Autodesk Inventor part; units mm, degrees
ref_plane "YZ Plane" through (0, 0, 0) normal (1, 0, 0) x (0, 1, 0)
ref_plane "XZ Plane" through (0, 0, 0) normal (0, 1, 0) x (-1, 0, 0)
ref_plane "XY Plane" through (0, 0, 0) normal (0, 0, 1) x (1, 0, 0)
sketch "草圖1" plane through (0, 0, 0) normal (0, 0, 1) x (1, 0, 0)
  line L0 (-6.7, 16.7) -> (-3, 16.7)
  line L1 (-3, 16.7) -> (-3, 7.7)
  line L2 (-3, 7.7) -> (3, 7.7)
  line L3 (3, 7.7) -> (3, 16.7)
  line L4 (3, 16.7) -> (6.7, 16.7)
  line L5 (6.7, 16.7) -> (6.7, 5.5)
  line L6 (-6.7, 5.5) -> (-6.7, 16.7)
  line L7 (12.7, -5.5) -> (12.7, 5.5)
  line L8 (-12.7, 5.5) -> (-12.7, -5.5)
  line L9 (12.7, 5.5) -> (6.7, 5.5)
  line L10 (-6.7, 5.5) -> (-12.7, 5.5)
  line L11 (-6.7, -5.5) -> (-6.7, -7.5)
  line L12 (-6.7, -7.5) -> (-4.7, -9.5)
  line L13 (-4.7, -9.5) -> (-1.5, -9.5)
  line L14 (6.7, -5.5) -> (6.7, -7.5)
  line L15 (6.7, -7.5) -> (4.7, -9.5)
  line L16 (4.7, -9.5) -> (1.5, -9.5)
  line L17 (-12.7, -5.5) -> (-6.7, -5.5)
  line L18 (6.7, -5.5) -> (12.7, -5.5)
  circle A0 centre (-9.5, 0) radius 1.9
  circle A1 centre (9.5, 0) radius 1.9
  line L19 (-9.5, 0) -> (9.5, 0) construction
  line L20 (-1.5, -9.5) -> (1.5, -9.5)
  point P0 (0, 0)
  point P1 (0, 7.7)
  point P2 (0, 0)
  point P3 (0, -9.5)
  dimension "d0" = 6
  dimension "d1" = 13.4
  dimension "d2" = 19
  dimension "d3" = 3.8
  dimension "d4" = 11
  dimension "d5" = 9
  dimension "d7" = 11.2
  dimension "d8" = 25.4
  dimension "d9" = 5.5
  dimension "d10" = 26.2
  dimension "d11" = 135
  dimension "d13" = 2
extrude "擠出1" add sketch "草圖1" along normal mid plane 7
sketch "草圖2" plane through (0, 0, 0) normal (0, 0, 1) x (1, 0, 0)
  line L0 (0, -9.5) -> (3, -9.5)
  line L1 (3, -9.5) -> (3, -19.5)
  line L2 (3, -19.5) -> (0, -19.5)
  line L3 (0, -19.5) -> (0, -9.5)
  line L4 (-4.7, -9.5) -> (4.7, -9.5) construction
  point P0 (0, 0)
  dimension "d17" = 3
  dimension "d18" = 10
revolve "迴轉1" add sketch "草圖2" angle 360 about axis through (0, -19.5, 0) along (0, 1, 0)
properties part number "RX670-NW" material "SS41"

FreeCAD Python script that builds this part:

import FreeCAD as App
import Part
import Sketcher

V = App.Vector
Q = App.Units.Quantity

doc = App.newDocument("Part")
body = doc.addObject("PartDesign::Body", "Body")

# Sketch on XY plane
sketch1 = doc.addObject("Sketcher::SketchObject", "Sketch")
body.addObject(sketch1)
sketch1.AttachmentSupport = (doc.XY_Plane, [""])
sketch1.MapMode = "FlatFace"
sketch1.addGeometry([
    Part.LineSegment(V(-3, 16.7, 0), V(-6.7, 16.7, 0)),  # 0
    Part.LineSegment(V(-6.7, 16.7, 0), V(-6.7, 5.5, 0)),  # 1
    Part.LineSegment(V(-6.7, 5.5, 0), V(-12.7, 5.5, 0)),  # 2
    Part.LineSegment(V(-12.7, 5.5, 0), V(-12.7, -5.5, 0)),  # 3
    Part.LineSegment(V(-12.7, -5.5, 0), V(-6.7, -5.5, 0)),  # 4
    Part.LineSegment(V(-6.7, -5.5, 0), V(-6.7, -7.5, 0)),  # 5
    Part.LineSegment(V(-6.7, -7.5, 0), V(-4.7, -9.5, 0)),  # 6
    Part.LineSegment(V(-4.7, -9.5, 0), V(4.7, -9.5, 0)),  # 7
    Part.LineSegment(V(4.7, -9.5, 0), V(6.7, -7.5, 0)),  # 8
    Part.LineSegment(V(6.7, -7.5, 0), V(6.7, -5.5, 0)),  # 9
    Part.LineSegment(V(6.7, -5.5, 0), V(12.7, -5.5, 0)),  # 10
    Part.LineSegment(V(12.7, -5.5, 0), V(12.7, 5.5, 0)),  # 11
    Part.LineSegment(V(12.7, 5.5, 0), V(6.7, 5.5, 0)),  # 12
    Part.LineSegment(V(6.7, 5.5, 0), V(6.7, 16.7, 0)),  # 13
    Part.LineSegment(V(6.7, 16.7, 0), V(3, 16.7, 0)),  # 14
    Part.LineSegment(V(3, 16.7, 0), V(3, 7.7, 0)),  # 15
    Part.LineSegment(V(3, 7.7, 0), V(-3, 7.7, 0)),  # 16
    Part.LineSegment(V(-3, 7.7, 0), V(-3, 16.7, 0)),  # 17
    Part.Circle(V(-9.5, 0, 0), V(0, 0, 1), 1.9),  # 18
    Part.Circle(V(9.5, 0, 0), V(0, 0, 1), 1.9),  # 19
], False)
sketch1.addConstraint([
    Sketcher.Constraint("Coincident", 0, 2, 1, 1),
    Sketcher.Constraint("Coincident", 1, 2, 2, 1),
    Sketcher.Constraint("Coincident", 2, 2, 3, 1),
    Sketcher.Constraint("Coincident", 3, 2, 4, 1),
    Sketcher.Constraint("Coincident", 4, 2, 5, 1),
    Sketcher.Constraint("Coincident", 5, 2, 6, 1),
    Sketcher.Constraint("Coincident", 6, 2, 7, 1),
    Sketcher.Constraint("Coincident", 7, 2, 8, 1),
    Sketcher.Constraint("Coincident", 8, 2, 9, 1),
    Sketcher.Constraint("Coincident", 9, 2, 10, 1),
    Sketcher.Constraint("Coincident", 10, 2, 11, 1),
    Sketcher.Constraint("Coincident", 11, 2, 12, 1),
    Sketcher.Constraint("Coincident", 12, 2, 13, 1),
    Sketcher.Constraint("Coincident", 13, 2, 14, 1),
    Sketcher.Constraint("Coincident", 14, 2, 15, 1),
    Sketcher.Constraint("Coincident", 15, 2, 16, 1),
    Sketcher.Constraint("Coincident", 16, 2, 17, 1),
    Sketcher.Constraint("Coincident", 17, 2, 0, 1),
    Sketcher.Constraint("Horizontal", 0),
    Sketcher.Constraint("Vertical", 1),
    Sketcher.Constraint("Horizontal", 2),
    Sketcher.Constraint("Vertical", 3),
    Sketcher.Constraint("Horizontal", 4),
    Sketcher.Constraint("Vertical", 5),
    Sketcher.Constraint("Horizontal", 7),
    Sketcher.Constraint("Vertical", 9),
    Sketcher.Constraint("Horizontal", 10),
    Sketcher.Constraint("Vertical", 11),
    Sketcher.Constraint("Horizontal", 12),
    Sketcher.Constraint("Vertical", 13),
    Sketcher.Constraint("Horizontal", 14),
    Sketcher.Constraint("Vertical", 15),
    Sketcher.Constraint("Horizontal", 16),
    Sketcher.Constraint("Vertical", 17),
    Sketcher.Constraint("Equal", 18, 19),
    Sketcher.Constraint("Symmetric", 18, 3, 19, 3, -1, 1),
    Sketcher.Constraint("Symmetric", 1, 2, 9, 2, -1, 1),
    Sketcher.Constraint("Symmetric", 3, 2, 11, 2, -1, 1),
    Sketcher.Constraint("Symmetric", 5, 2, 8, 2, -2),
    Sketcher.Constraint("Symmetric", 1, 2, 12, 2, -2),
    Sketcher.Constraint("Symmetric", 14, 2, 17, 2, -2),
    Sketcher.Constraint("PointOnObject", 18, 3, -1),
    Sketcher.Constraint("Perpendicular", 6, 8),
    Sketcher.Constraint("Equal", 12, 16),
    Sketcher.Constraint("Equal", 6, 8),
    Sketcher.Constraint("Diameter", 18, Q("3.8 mm")),
    Sketcher.Constraint("DistanceX", 2, 2, 2, 1, Q("6 mm")),
    Sketcher.Constraint("DistanceY", 3, 2, 3, 1, Q("11 mm")),
    Sketcher.Constraint("DistanceY", 5, 2, 5, 1, Q("2 mm")),
    Sketcher.Constraint("DistanceY", 15, 2, 15, 1, Q("9 mm")),
    Sketcher.Constraint("DistanceY", 1, 2, 1, 1, Q("11.2 mm")),
    Sketcher.Constraint("DistanceX", 18, 3, 19, 3, Q("19 mm")),
    Sketcher.Constraint("DistanceX", 5, 2, 6, 2, Q("2 mm")),
    Sketcher.Constraint("DistanceX", 5, 2, 8, 2, Q("13.4 mm")),
])
pad1 = doc.addObject("PartDesign::Pad", "Pad")
body.addObject(pad1)
pad1.Profile = sketch1
pad1.Length = 7
pad1.Midplane = True

# Sketch on XY plane
sketch2 = doc.addObject("Sketcher::SketchObject", "Sketch001")
body.addObject(sketch2)
sketch2.AttachmentSupport = (doc.XY_Plane, [""])
sketch2.MapMode = "FlatFace"
sketch2.addGeometry([
    Part.LineSegment(V(3, -9.5, 0), V(0, -9.5, 0)),
    Part.LineSegment(V(0, -9.5, 0), V(0, -19.5, 0)),
    Part.LineSegment(V(0, -19.5, 0), V(3, -19.5, 0)),
    Part.LineSegment(V(3, -19.5, 0), V(3, -9.5, 0)),
], False)
sketch2.addConstraint([
    Sketcher.Constraint("Coincident", 0, 2, 1, 1),
    Sketcher.Constraint("Coincident", 1, 2, 2, 1),
    Sketcher.Constraint("Coincident", 2, 2, 3, 1),
    Sketcher.Constraint("Coincident", 3, 2, 0, 1),
    Sketcher.Constraint("Horizontal", 0),
    Sketcher.Constraint("Vertical", 1),
    Sketcher.Constraint("Horizontal", 2),
    Sketcher.Constraint("Vertical", 3),
    Sketcher.Constraint("PointOnObject", 0, 2, -2),
    Sketcher.Constraint("DistanceX", 0, 2, 0, 1, Q("3 mm")),
    Sketcher.Constraint("DistanceY", 1, 2, 1, 1, Q("10 mm")),
    Sketcher.Constraint("DistanceY", 0, 2, -1, 1, Q("9.5 mm")),
])
revolution = doc.addObject("PartDesign::Revolution", "Revolution")
body.addObject(revolution)
revolution.Profile = sketch2
revolution.ReferenceAxis = (sketch2, ["V_Axis"])
revolution.Angle = 360

doc.recompute()
